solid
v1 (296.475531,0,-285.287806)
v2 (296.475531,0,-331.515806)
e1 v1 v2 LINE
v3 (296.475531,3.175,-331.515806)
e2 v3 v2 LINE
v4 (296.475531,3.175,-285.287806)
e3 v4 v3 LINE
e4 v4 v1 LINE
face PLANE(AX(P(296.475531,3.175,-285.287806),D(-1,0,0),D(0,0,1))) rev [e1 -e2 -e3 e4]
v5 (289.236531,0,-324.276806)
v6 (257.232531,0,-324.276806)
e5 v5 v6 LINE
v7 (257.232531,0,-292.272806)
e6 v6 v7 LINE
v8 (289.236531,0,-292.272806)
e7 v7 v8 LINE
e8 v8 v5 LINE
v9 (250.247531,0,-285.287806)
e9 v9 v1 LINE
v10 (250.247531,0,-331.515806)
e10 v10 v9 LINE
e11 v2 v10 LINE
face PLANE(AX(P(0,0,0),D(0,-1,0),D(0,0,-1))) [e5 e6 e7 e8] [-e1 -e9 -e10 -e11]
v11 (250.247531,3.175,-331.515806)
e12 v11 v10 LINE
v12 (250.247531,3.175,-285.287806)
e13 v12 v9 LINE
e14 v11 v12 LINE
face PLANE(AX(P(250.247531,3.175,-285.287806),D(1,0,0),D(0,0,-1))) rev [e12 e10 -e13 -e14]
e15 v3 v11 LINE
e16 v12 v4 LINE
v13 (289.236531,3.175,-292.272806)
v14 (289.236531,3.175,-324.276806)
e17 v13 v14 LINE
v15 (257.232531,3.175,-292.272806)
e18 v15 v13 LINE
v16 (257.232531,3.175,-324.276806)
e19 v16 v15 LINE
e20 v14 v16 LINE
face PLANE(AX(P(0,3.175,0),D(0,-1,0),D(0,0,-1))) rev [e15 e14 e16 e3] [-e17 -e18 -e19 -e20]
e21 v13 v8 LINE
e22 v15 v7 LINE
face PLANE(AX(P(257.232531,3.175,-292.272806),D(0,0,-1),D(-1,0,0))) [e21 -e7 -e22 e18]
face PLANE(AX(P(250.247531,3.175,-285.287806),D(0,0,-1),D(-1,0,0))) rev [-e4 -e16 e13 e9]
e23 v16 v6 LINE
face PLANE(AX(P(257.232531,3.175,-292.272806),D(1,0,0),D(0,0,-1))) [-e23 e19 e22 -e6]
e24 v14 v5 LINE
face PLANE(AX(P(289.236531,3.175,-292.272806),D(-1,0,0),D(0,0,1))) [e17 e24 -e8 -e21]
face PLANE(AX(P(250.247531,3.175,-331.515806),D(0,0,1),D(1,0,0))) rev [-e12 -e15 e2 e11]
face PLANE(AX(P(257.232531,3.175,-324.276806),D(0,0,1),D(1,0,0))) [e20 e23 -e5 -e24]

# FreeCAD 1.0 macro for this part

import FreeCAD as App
import Part
import Sketcher
from FreeCAD import Vector
Q = App.Units.Quantity


def add_polygon(sketch, points):
    """Adds a closed chain of lines whose ends are joined by coincident constraints."""
    first, n = sketch.GeometryCount, len(points)
    for a, b in zip(points, points[1:] + points[:1]):
        sketch.addGeometry(Part.LineSegment(App.Vector(*a, 0), App.Vector(*b, 0)), False)
    for i in range(n):
        sketch.addConstraint(Sketcher.Constraint("Coincident", first + i, 2, first + (i + 1) % n, 1))

doc = App.newDocument("Part")
body = doc.addObject("PartDesign::Body", "Body")

# Sketch on XZ plane
sketch1 = body.newObject("Sketcher::SketchObject", "Sketch")
sketch1.AttachmentSupport = (doc.getObject("XZ_Plane"), [""])
sketch1.MapMode = "FlatFace"
add_polygon(sketch1, [(250.247531, -331.515806), (250.247531, -285.287806), (296.475531, -285.287806), (296.475531, -331.515806)])  # lines 0-3
add_polygon(sketch1, [(289.236531, -292.272806), (257.232531, -292.272806), (257.232531, -324.276806), (289.236531, -324.276806)])  # lines 4-7
sketch1.addConstraint(Sketcher.Constraint("Vertical", 0))
sketch1.addConstraint(Sketcher.Constraint("Horizontal", 1))
sketch1.addConstraint(Sketcher.Constraint("Vertical", 2))
sketch1.addConstraint(Sketcher.Constraint("Horizontal", 3))
sketch1.addConstraint(Sketcher.Constraint("Horizontal", 4))
sketch1.addConstraint(Sketcher.Constraint("Vertical", 5))
sketch1.addConstraint(Sketcher.Constraint("Horizontal", 6))
sketch1.addConstraint(Sketcher.Constraint("Vertical", 7))
sketch1.addConstraint(Sketcher.Constraint("Equal", 3, 0))
sketch1.addConstraint(Sketcher.Constraint("Equal", 6, 5))
sketch1.addConstraint(Sketcher.Constraint("DistanceX", 1, 1, 1, 2, Q("1.82 in")))
sketch1.addConstraint(Sketcher.Constraint("DistanceX", 4, 2, 4, 1, Q("1.26 in")))
sketch1.addConstraint(Sketcher.Constraint("DistanceX", 0, 2, 4, 2, Q("0.275 in")))
sketch1.addConstraint(Sketcher.Constraint("DistanceY", 4, 2, 0, 2, Q("0.275 in")))
sketch1.addConstraint(Sketcher.Constraint("DistanceX", -1, 1, 0, 2, 250.247531))
sketch1.addConstraint(Sketcher.Constraint("DistanceY", 0, 2, -1, 1, 285.287806))
pad1 = body.newObject("PartDesign::Pad", "Pad")
pad1.Profile = sketch1
pad1.Length = Q("0.125 in")
pad1.Reversed = True

doc.recompute()
